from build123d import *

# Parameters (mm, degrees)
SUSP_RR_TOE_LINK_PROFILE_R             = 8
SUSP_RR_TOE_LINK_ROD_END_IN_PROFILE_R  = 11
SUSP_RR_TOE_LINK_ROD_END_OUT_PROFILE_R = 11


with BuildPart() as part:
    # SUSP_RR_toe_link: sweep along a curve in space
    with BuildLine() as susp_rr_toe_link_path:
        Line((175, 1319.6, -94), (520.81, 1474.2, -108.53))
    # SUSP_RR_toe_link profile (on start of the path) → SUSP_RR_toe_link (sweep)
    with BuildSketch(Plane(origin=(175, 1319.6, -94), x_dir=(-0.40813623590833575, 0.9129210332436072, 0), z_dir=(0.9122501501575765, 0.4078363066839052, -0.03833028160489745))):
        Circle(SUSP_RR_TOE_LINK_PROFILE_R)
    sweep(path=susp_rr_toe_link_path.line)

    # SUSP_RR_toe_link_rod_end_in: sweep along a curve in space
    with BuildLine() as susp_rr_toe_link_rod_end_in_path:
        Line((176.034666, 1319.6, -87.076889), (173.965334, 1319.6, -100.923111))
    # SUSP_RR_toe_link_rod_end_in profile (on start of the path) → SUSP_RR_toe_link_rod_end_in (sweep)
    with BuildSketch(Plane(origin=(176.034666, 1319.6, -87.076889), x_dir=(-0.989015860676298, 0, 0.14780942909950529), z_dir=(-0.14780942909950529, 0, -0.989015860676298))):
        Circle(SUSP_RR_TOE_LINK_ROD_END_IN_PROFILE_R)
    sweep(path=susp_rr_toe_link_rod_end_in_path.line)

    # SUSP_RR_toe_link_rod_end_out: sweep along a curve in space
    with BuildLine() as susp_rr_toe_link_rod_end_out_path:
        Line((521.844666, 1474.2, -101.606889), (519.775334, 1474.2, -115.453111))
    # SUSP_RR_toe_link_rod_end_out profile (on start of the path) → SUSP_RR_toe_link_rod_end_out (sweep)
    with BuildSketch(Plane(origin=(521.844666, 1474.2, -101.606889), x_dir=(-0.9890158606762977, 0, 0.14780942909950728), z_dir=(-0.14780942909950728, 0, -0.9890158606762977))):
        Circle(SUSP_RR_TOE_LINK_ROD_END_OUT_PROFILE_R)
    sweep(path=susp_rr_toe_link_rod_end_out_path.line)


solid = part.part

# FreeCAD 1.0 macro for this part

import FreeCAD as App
import Part
import Sketcher

doc = App.newDocument("Part")
body = doc.addObject("PartDesign::Body", "Body")

sketch1 = doc.addObject("Sketcher::SketchObject", "Sketch")
body.addObject(sketch1)
sketch1.Placement = App.Placement(App.Vector(175, 1319.6, -94), App.Rotation(App.Vector(-0.408136236, 0.912921033, 0), App.Vector(0.034992521, 0.015643977, 0.999265125), App.Vector(0.91225015, 0.407836307, -0.038330282), "ZXY"))
sketch1.addGeometry(Part.Circle(App.Vector(0, 0, 0), App.Vector(0, 0, 1), 8), False)
sketch1.addConstraint([
    Sketcher.Constraint("Coincident", 0, 3, -1, 1),
    Sketcher.Constraint("Diameter", 0, 16.0),
])

sketch2 = doc.addObject("Sketcher::SketchObject", "Sketch001")
body.addObject(sketch2)
sketch2.Placement = App.Placement(App.Vector(-462.527227, 1034.583056, 0), App.Rotation(App.Vector(0.912921033, 0.408136236, 0), App.Vector(0, 0, 1), App.Vector(0.408136236, -0.912921033, 0), "ZXY"))
sketch2.addGeometry(Part.LineSegment(App.Vector(698.337757, -94, 0), App.Vector(1077.132842, -108.53, 0)), False)
sketch2.addConstraint([
    Sketcher.Constraint("DistanceY", 0, 1, -1, 1, 94.0),
    Sketcher.Constraint("DistanceY", 0, 2, -1, 1, 108.53),
    Sketcher.Constraint("DistanceX", -1, 1, 0, 2, 1077.132842),
    Sketcher.Constraint("Distance", 0, 379.073656),
])
doc.recompute()

additivepipe = doc.addObject("PartDesign::AdditivePipe", "AdditivePipe")
body.addObject(additivepipe)
additivepipe.Profile = sketch1
additivepipe.Spine = (sketch2, ["Edge1"])

sketch3 = doc.addObject("Sketcher::SketchObject", "Sketch002")
body.addObject(sketch3)
sketch3.Placement = App.Placement(App.Vector(176.034666, 1319.6, -87.076889), App.Rotation(App.Vector(-0.989015861, 0, 0.147809429), App.Vector(0, 1.000000001, 0), App.Vector(-0.147809429, 0, -0.989015861), "ZXY"))
sketch3.addGeometry(Part.Circle(App.Vector(0, 0, 0), App.Vector(0, 0, 1), 11), False)
sketch3.addConstraint([
    Sketcher.Constraint("Coincident", 0, 3, -1, 1),
    Sketcher.Constraint("Diameter", 0, 22.0),
])

sketch4 = doc.addObject("Sketcher::SketchObject", "Sketch003")
body.addObject(sketch4)
sketch4.Placement = App.Placement(App.Vector(184.918137, 0, -27.636204), App.Rotation(App.Vector(-0.147809429, 0, -0.989015861), App.Vector(0, 1.000000001, 0), App.Vector(0.989015861, 0, -0.147809429), "ZXY"))
sketch4.addGeometry(Part.LineSegment(App.Vector(60.100841, 1319.600002, 0), App.Vector(74.100841, 1319.600002, 0)), False)
sketch4.addConstraint([
    Sketcher.Constraint("Horizontal", 0),
    Sketcher.Constraint("DistanceX", 0, 1, 0, 2, 14.0),
    Sketcher.Constraint("DistanceY", -1, 1, 0, 1, 1319.600002),
    Sketcher.Constraint("DistanceX", -1, 1, 0, 1, 60.100841),
])
doc.recompute()

additivepipe2 = doc.addObject("PartDesign::AdditivePipe", "AdditivePipe001")
body.addObject(additivepipe2)
additivepipe2.Profile = sketch3
additivepipe2.Spine = (sketch4, ["Edge1"])

sketch5 = doc.addObject("Sketcher::SketchObject", "Sketch004")
body.addObject(sketch5)
sketch5.Placement = App.Placement(App.Vector(521.844666, 1474.2, -101.606889), App.Rotation(App.Vector(-0.989015861, 0, 0.147809429), App.Vector(0, 1.000000001, 0), App.Vector(-0.147809429, 0, -0.989015861), "ZXY"))
sketch5.addGeometry(Part.Circle(App.Vector(0, 0, 0), App.Vector(0, 0, 1), 11), False)
sketch5.addConstraint([
    Sketcher.Constraint("Coincident", 0, 3, -1, 1),
    Sketcher.Constraint("Diameter", 0, 22.0),
])

sketch6 = doc.addObject("Sketcher::SketchObject", "Sketch005")
body.addObject(sketch6)
sketch6.Placement = App.Placement(App.Vector(525.29709, 0, -78.506186), App.Rotation(App.Vector(-0.147809429, 0, -0.989015861), App.Vector(0, 1.000000001, 0), App.Vector(0.989015861, 0, -0.147809429), "ZXY"))
sketch6.addGeometry(Part.LineSegment(App.Vector(23.357263, 1474.200002, 0), App.Vector(37.357263, 1474.200002, 0)), False)
sketch6.addConstraint([
    Sketcher.Constraint("Horizontal", 0),
    Sketcher.Constraint("DistanceX", 0, 1, 0, 2, 14.0),
    Sketcher.Constraint("DistanceY", -1, 1, 0, 1, 1474.200002),
    Sketcher.Constraint("DistanceX", -1, 1, 0, 1, 23.357263),
])
doc.recompute()

additivepipe3 = doc.addObject("PartDesign::AdditivePipe", "AdditivePipe002")
body.addObject(additivepipe3)
additivepipe3.Profile = sketch5
additivepipe3.Spine = (sketch6, ["Edge1"])

doc.recompute()
